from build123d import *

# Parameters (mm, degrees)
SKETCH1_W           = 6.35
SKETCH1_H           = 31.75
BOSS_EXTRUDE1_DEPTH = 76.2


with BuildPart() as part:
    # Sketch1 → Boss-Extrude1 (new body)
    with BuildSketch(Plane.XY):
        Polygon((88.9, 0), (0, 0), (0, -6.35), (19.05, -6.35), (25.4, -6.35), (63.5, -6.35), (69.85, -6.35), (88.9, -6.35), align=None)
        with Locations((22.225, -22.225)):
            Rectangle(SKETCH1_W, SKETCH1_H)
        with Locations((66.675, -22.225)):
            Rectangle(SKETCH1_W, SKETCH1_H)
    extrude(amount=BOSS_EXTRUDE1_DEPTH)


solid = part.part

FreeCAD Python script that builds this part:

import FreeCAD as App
import Part
import Sketcher

V = App.Vector
Q = App.Units.Quantity

doc = App.newDocument("Part")
body = doc.addObject("PartDesign::Body", "Body")

# Sketch on XY plane
sketch1 = body.newObject("Sketcher::SketchObject", "Sketch")
sketch1.AttachmentSupport = (doc.getObject("XY_Plane"), [""])
sketch1.MapMode = "FlatFace"
sketch1.addGeometry([
    Part.LineSegment(V(89, 0, 0), V(0, 0, 0)),  # 0
    Part.LineSegment(V(0, 0, 0), V(0, -6, 0)),  # 1
    Part.LineSegment(V(0, -6, 0), V(19, -6, 0)),  # 2
    Part.LineSegment(V(19, -6, 0), V(19, -38, 0)),  # 3
    Part.LineSegment(V(19, -38, 0), V(25, -38, 0)),  # 4
    Part.LineSegment(V(25, -38, 0), V(25, -6, 0)),  # 5
    Part.LineSegment(V(25, -6, 0), V(64, -6, 0)),  # 6
    Part.LineSegment(V(64, -6, 0), V(64, -38, 0)),  # 7
    Part.LineSegment(V(64, -38, 0), V(70, -38, 0)),  # 8
    Part.LineSegment(V(70, -38, 0), V(70, -6, 0)),  # 9
    Part.LineSegment(V(70, -6, 0), V(89, -6, 0)),  # 10
    Part.LineSegment(V(89, -6, 0), V(89, 0, 0)),  # 11
], False)
sketch1.addConstraint([
    Sketcher.Constraint("Coincident", 0, 2, 1, 1),
    Sketcher.Constraint("Coincident", 1, 2, 2, 1),
    Sketcher.Constraint("Coincident", 2, 2, 3, 1),
    Sketcher.Constraint("Coincident", 3, 2, 4, 1),
    Sketcher.Constraint("Coincident", 4, 2, 5, 1),
    Sketcher.Constraint("Coincident", 5, 2, 6, 1),
    Sketcher.Constraint("Coincident", 6, 2, 7, 1),
    Sketcher.Constraint("Coincident", 7, 2, 8, 1),
    Sketcher.Constraint("Coincident", 8, 2, 9, 1),
    Sketcher.Constraint("Coincident", 9, 2, 10, 1),
    Sketcher.Constraint("Coincident", 10, 2, 11, 1),
    Sketcher.Constraint("Coincident", 11, 2, 0, 1),
    Sketcher.Constraint("Horizontal", 0),
    Sketcher.Constraint("Vertical", 1),
    Sketcher.Constraint("Horizontal", 2),
    Sketcher.Constraint("Vertical", 3),
    Sketcher.Constraint("Horizontal", 4),
    Sketcher.Constraint("Vertical", 5),
    Sketcher.Constraint("Horizontal", 6),
    Sketcher.Constraint("Vertical", 7),
    Sketcher.Constraint("Horizontal", 8),
    Sketcher.Constraint("Vertical", 9),
    Sketcher.Constraint("Horizontal", 10),
    Sketcher.Constraint("Vertical", 11),
    Sketcher.Constraint("Coincident", 0, 2, -1, 1),
    Sketcher.Constraint("Horizontal", 2, 2, 5, 2),
    Sketcher.Constraint("Horizontal", 4, 2, 7, 2),
    Sketcher.Constraint("Horizontal", 6, 2, 9, 2),
    Sketcher.Constraint("Equal", 4, 8),
    Sketcher.Constraint("Equal", 2, 10),
    Sketcher.Constraint("Equal", 8, 1),
    Sketcher.Constraint("DistanceX", 0, 2, 0, 1, Q("3.5 in")),
    Sketcher.Constraint("DistanceX", 6, 1, 6, 2, Q("1.5 in")),
    Sketcher.Constraint("DistanceX", 3, 2, 8, 2, Q("2 in")),
    Sketcher.Constraint("DistanceY", 3, 2, 3, 1, Q("1.25 in")),
])
pad1 = body.newObject("PartDesign::Pad", "Pad")
pad1.Profile = sketch1
pad1.Length = Q("3 in")

doc.recompute()
